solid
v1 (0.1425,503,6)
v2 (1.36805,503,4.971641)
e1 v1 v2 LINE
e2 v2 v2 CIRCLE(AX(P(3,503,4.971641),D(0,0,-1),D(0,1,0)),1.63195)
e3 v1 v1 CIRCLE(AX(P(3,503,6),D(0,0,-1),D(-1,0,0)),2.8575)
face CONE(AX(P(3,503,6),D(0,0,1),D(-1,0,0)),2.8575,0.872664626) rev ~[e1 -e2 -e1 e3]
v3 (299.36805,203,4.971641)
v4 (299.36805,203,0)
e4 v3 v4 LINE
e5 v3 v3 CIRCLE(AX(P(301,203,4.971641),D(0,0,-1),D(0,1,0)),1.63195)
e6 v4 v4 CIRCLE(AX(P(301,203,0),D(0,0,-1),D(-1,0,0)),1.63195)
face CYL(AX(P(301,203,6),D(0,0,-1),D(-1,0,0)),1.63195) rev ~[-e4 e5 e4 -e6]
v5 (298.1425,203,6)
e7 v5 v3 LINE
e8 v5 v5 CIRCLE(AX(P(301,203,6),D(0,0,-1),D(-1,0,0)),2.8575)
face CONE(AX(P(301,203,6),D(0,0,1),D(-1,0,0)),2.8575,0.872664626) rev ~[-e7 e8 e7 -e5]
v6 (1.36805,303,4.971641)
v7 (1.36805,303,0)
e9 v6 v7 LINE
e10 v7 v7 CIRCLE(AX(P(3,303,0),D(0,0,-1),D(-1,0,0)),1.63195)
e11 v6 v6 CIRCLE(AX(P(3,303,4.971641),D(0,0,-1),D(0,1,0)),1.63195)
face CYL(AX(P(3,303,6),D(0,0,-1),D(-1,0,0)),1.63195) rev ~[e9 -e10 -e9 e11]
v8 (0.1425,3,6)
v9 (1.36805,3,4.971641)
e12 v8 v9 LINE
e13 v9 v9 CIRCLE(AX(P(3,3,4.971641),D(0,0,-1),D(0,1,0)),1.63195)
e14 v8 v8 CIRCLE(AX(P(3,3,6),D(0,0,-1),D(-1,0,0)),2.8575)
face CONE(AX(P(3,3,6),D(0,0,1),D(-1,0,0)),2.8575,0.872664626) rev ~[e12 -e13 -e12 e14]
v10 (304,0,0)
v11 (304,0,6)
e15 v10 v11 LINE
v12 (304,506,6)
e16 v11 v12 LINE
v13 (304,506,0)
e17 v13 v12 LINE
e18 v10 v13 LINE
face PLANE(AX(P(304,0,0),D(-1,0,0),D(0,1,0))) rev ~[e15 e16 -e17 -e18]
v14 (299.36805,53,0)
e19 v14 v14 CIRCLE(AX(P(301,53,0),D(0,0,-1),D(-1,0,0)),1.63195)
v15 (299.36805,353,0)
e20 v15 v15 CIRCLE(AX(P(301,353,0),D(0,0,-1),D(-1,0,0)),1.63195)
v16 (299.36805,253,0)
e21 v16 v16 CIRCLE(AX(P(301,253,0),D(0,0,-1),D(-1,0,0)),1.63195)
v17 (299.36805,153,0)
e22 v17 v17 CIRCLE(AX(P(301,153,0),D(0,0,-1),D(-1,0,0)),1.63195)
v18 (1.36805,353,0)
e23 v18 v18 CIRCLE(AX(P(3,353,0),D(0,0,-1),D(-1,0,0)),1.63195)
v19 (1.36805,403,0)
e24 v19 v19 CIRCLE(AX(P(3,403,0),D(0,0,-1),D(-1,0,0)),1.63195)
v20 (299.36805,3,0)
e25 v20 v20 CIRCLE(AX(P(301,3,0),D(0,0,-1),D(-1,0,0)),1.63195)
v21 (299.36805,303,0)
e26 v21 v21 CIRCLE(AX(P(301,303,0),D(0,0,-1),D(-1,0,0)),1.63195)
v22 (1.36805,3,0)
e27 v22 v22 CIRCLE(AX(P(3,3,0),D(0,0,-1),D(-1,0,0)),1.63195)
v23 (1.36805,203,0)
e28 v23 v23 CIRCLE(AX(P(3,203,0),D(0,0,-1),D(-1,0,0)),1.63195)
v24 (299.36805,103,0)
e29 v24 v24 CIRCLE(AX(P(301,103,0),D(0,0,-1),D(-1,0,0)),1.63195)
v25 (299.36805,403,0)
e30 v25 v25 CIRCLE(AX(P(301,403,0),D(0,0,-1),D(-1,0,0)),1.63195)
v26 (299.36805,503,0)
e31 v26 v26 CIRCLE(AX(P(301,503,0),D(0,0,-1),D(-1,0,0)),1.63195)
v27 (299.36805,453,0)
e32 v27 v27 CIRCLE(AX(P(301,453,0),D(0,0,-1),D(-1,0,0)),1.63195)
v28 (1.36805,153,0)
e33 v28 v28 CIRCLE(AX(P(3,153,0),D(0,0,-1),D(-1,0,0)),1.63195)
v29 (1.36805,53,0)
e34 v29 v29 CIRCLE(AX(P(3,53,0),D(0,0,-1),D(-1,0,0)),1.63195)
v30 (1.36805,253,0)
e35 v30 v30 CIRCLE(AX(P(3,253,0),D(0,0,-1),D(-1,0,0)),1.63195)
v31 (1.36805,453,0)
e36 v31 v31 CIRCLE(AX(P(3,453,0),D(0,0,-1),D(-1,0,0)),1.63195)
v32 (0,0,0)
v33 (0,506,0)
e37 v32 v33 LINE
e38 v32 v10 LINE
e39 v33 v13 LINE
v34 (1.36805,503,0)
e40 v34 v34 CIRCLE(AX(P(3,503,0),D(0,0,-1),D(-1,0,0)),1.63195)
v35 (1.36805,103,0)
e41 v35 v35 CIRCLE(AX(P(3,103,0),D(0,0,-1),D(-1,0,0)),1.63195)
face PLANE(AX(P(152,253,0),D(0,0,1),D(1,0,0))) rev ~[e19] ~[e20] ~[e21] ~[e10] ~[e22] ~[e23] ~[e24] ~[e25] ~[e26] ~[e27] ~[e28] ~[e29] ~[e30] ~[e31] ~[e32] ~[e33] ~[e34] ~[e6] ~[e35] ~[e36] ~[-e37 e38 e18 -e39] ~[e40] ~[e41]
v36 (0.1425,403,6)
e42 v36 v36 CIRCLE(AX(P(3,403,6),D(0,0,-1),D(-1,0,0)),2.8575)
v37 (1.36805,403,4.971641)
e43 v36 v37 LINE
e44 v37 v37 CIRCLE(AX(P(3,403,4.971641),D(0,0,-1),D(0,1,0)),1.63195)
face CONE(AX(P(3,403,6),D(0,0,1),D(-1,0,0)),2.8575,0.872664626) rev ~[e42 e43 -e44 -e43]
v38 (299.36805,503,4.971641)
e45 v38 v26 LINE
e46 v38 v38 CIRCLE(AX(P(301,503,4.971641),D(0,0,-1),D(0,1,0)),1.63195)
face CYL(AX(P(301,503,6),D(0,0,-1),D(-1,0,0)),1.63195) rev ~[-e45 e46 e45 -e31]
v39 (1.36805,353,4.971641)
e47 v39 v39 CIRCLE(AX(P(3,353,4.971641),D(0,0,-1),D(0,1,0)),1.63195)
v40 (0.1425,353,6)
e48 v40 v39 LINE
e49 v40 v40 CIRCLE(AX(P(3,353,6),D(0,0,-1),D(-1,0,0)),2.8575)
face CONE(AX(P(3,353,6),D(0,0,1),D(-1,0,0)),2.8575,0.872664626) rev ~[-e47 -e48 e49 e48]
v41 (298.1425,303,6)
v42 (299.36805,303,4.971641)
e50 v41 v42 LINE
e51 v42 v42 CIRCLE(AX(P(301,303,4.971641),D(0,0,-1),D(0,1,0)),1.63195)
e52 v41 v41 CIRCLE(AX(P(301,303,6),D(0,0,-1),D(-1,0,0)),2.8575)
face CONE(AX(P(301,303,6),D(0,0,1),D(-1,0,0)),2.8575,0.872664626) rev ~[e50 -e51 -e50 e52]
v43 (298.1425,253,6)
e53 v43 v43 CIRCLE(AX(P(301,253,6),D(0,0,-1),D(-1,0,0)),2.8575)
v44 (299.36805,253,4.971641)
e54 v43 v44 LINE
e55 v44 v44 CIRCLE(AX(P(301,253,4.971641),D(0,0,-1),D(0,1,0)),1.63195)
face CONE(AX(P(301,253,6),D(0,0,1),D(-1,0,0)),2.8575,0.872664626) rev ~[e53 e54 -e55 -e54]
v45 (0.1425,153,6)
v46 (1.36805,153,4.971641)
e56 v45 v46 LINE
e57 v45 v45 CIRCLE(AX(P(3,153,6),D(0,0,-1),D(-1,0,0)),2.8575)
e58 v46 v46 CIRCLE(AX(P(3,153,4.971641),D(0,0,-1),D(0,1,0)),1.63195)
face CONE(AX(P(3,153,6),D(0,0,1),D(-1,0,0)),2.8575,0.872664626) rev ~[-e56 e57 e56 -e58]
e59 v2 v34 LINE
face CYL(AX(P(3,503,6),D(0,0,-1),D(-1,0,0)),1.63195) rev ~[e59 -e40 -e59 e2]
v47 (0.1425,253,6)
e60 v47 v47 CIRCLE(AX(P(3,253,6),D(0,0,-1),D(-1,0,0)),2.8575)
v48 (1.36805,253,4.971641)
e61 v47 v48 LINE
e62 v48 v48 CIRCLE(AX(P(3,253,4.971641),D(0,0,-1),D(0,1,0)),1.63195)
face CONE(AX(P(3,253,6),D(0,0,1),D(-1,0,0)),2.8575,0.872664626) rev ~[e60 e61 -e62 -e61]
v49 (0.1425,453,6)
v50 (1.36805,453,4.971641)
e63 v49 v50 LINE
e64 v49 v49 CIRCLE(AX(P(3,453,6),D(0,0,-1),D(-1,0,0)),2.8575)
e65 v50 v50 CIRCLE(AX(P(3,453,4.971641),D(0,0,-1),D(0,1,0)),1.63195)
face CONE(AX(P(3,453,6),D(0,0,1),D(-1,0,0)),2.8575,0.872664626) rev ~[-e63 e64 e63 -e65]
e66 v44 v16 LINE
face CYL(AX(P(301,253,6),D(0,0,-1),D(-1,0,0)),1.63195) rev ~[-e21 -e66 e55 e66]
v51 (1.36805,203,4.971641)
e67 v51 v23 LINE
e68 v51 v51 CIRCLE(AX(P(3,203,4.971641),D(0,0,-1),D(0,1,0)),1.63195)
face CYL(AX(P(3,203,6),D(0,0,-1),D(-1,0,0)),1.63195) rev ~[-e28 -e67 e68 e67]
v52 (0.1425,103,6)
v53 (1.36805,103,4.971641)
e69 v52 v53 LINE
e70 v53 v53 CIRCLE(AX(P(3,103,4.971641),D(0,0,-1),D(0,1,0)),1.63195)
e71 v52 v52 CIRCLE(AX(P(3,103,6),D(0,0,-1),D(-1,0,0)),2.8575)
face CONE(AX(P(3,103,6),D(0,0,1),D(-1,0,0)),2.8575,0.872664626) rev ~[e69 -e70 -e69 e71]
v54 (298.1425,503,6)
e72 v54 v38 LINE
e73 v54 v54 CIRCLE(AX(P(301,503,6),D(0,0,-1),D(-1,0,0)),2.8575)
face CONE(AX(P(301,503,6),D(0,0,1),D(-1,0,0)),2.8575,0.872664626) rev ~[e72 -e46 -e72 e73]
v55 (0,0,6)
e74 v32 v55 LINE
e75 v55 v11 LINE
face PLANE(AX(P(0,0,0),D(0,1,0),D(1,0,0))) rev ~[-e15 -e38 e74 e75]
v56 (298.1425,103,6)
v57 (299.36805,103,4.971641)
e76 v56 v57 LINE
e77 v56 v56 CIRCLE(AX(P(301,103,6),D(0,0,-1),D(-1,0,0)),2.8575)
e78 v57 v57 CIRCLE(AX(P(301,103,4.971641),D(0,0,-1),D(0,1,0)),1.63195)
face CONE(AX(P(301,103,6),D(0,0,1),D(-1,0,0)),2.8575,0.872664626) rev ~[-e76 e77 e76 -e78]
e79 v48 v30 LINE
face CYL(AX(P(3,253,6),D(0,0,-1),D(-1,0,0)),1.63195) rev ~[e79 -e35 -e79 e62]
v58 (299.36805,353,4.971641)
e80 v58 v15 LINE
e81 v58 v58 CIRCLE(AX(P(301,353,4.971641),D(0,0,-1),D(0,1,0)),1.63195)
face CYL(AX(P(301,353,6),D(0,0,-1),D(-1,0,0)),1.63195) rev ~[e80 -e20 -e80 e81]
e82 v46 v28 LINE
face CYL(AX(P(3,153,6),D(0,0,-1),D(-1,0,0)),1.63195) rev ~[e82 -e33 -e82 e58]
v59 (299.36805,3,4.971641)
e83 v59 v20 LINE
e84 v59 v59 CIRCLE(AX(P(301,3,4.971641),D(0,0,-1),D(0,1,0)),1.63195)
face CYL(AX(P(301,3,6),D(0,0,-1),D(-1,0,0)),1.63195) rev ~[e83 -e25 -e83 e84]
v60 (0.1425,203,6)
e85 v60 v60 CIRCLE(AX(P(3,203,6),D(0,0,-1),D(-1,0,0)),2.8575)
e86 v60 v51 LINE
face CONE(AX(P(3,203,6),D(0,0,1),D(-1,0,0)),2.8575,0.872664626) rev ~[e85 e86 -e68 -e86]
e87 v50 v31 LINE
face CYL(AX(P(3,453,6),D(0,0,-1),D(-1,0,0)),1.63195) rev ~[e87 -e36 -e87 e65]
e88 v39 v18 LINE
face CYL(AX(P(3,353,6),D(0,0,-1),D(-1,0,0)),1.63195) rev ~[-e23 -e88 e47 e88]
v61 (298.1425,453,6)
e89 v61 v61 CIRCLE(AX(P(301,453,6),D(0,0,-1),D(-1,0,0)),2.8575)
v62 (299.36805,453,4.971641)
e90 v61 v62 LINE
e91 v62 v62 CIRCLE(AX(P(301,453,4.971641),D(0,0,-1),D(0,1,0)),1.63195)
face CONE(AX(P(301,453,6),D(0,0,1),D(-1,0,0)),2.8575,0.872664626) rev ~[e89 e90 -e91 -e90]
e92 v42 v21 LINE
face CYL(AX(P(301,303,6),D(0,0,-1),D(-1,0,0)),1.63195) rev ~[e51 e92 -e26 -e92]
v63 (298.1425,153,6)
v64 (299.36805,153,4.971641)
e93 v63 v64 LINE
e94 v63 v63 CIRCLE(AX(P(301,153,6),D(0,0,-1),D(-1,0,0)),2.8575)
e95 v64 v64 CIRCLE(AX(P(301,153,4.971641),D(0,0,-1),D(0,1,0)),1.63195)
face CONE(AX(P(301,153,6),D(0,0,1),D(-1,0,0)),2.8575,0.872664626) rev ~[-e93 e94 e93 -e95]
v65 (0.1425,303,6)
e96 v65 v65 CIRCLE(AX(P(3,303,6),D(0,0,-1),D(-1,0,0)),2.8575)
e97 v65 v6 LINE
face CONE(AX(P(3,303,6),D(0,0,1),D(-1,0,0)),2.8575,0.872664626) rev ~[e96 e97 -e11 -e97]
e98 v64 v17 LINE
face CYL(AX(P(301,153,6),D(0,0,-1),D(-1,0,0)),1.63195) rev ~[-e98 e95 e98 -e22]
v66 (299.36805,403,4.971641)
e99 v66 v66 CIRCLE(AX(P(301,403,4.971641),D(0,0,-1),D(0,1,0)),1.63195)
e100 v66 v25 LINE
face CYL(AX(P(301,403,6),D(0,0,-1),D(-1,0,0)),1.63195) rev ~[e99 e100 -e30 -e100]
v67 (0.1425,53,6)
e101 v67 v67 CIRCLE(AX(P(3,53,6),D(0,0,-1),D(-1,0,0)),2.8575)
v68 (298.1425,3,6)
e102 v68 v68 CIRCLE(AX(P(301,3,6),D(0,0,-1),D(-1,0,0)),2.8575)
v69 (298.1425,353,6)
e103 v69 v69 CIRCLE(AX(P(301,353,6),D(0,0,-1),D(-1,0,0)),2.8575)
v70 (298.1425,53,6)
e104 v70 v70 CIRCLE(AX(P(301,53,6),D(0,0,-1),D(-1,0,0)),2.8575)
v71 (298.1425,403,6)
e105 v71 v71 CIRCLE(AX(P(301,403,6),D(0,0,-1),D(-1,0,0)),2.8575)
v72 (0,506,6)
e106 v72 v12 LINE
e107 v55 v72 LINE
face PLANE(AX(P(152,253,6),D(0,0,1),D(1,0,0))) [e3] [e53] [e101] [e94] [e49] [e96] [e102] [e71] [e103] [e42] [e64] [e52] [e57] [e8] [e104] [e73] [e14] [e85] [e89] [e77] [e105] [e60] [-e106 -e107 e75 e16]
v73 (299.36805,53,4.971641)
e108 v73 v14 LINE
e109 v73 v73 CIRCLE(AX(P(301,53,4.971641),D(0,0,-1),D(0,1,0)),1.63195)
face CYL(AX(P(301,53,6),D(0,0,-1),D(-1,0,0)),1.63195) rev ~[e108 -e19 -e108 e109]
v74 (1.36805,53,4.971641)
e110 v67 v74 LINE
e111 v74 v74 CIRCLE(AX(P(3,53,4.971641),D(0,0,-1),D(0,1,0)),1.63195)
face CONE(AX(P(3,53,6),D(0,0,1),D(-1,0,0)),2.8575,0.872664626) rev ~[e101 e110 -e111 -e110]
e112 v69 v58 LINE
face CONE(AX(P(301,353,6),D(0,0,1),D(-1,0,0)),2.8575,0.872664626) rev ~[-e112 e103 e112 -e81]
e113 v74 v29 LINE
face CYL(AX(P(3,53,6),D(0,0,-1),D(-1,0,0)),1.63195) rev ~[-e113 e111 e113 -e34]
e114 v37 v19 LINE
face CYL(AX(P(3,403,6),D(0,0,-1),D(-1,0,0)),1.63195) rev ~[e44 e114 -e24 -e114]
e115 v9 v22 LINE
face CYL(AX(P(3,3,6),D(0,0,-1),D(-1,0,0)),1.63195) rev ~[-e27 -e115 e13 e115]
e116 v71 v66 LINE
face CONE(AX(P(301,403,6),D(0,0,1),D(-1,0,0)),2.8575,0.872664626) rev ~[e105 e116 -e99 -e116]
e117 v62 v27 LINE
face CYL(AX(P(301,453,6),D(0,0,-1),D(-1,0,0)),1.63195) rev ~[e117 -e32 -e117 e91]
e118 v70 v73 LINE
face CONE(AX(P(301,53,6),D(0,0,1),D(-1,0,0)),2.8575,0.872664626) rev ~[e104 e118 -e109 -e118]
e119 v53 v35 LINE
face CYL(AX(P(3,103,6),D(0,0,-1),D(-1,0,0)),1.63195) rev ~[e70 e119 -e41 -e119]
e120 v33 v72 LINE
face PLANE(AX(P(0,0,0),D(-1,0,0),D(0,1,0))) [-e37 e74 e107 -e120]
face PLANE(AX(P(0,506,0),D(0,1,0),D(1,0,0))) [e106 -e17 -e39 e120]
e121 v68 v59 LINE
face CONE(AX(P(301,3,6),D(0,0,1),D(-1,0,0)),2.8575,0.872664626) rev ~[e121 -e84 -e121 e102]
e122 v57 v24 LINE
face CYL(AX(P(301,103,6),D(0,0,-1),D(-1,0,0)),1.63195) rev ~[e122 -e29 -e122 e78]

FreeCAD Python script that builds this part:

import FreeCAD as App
import Part
import Sketcher
from FreeCAD import Vector

doc = App.newDocument("Part")
body = doc.addObject("PartDesign::Body", "Body")

sketch1 = body.newObject("Sketcher::SketchObject", "Sketch")
sketch1.AttachmentSupport = (doc.getObject("XY_Plane"), [""])
sketch1.MapMode = "FlatFace"
sketch1.addGeometry(Part.LineSegment(Vector(0, 506, 0), Vector(0, 0, 0)), False)
sketch1.addGeometry(Part.LineSegment(Vector(0, 0, 0), Vector(304, 0, 0)), False)
sketch1.addGeometry(Part.LineSegment(Vector(304, 0, 0), Vector(304, 506, 0)), False)
sketch1.addGeometry(Part.LineSegment(Vector(304, 506, 0), Vector(0, 506, 0)), False)
sketch1.addConstraint(Sketcher.Constraint("Coincident", 0, 2, 1, 1))
sketch1.addConstraint(Sketcher.Constraint("Coincident", 1, 2, 2, 1))
sketch1.addConstraint(Sketcher.Constraint("Coincident", 2, 2, 3, 1))
sketch1.addConstraint(Sketcher.Constraint("Coincident", 3, 2, 0, 1))
sketch1.addConstraint(Sketcher.Constraint("Vertical", 0))
sketch1.addConstraint(Sketcher.Constraint("Horizontal", 1))
sketch1.addConstraint(Sketcher.Constraint("Vertical", 2))
sketch1.addConstraint(Sketcher.Constraint("Horizontal", 3))
sketch1.addConstraint(Sketcher.Constraint("Coincident", 0, 2, -1, 1))
sketch1.addConstraint(Sketcher.Constraint("DistanceX", 1, 1, 1, 2, 304.0))
sketch1.addConstraint(Sketcher.Constraint("DistanceY", 0, 2, 0, 1, 506.0))
pad1 = body.newObject("PartDesign::Pad", "Pad")
pad1.Profile = sketch1
pad1.Length = 6

sketch2 = body.newObject("Sketcher::SketchObject", "Sketch001")
sketch2.AttachmentSupport = (doc.getObject("XY_Plane"), [""])
sketch2.MapMode = "FlatFace"
sketch2.AttachmentOffset = App.Placement(Vector(0, 0, 6), App.Rotation())
sketch2.addGeometry(Part.Circle(Vector(3, 503, 0), Vector(0, 0, 1), 1.6), False)
sketch2.addGeometry(Part.Circle(Vector(3, 3, 0), Vector(0, 0, 1), 1.6), False)
sketch2.addGeometry(Part.Circle(Vector(3, 253, 0), Vector(0, 0, 1), 1.6), False)
sketch2.addGeometry(Part.Circle(Vector(3, 303, 0), Vector(0, 0, 1), 1.6), False)
sketch2.addGeometry(Part.Circle(Vector(3, 353, 0), Vector(0, 0, 1), 1.6), False)
sketch2.addGeometry(Part.Circle(Vector(3, 403, 0), Vector(0, 0, 1), 1.6), False)
sketch2.addGeometry(Part.Circle(Vector(3, 453, 0), Vector(0, 0, 1), 1.6), False)
sketch2.addGeometry(Part.Circle(Vector(3, 203, 0), Vector(0, 0, 1), 1.6), False)
sketch2.addGeometry(Part.Circle(Vector(3, 153, 0), Vector(0, 0, 1), 1.6), False)
sketch2.addGeometry(Part.Circle(Vector(3, 103, 0), Vector(0, 0, 1), 1.6), False)
sketch2.addGeometry(Part.Circle(Vector(3, 53, 0), Vector(0, 0, 1), 1.6), False)
sketch2.addGeometry(Part.Circle(Vector(301, 503, 0), Vector(0, 0, 1), 1.6), False)
sketch2.addGeometry(Part.Circle(Vector(301, 453, 0), Vector(0, 0, 1), 1.6), False)
sketch2.addGeometry(Part.Circle(Vector(301, 403, 0), Vector(0, 0, 1), 1.6), False)
sketch2.addGeometry(Part.Circle(Vector(301, 353, 0), Vector(0, 0, 1), 1.6), False)
sketch2.addGeometry(Part.Circle(Vector(301, 303, 0), Vector(0, 0, 1), 1.6), False)
sketch2.addGeometry(Part.Circle(Vector(301, 253, 0), Vector(0, 0, 1), 1.6), False)
sketch2.addGeometry(Part.Circle(Vector(301, 203, 0), Vector(0, 0, 1), 1.6), False)
sketch2.addGeometry(Part.Circle(Vector(301, 153, 0), Vector(0, 0, 1), 1.6), False)
sketch2.addGeometry(Part.Circle(Vector(301, 103, 0), Vector(0, 0, 1), 1.6), False)
sketch2.addGeometry(Part.Circle(Vector(301, 53, 0), Vector(0, 0, 1), 1.6), False)
sketch2.addGeometry(Part.Circle(Vector(301, 3, 0), Vector(0, 0, 1), 1.6), False)
sketch2.addConstraint(Sketcher.Constraint("Equal", 0, 1))
sketch2.addConstraint(Sketcher.Constraint("Equal", 1, 2))
sketch2.addConstraint(Sketcher.Constraint("Equal", 2, 3))
sketch2.addConstraint(Sketcher.Constraint("Equal", 3, 4))
sketch2.addConstraint(Sketcher.Constraint("Equal", 4, 5))
sketch2.addConstraint(Sketcher.Constraint("Equal", 5, 6))
sketch2.addConstraint(Sketcher.Constraint("Equal", 6, 7))
sketch2.addConstraint(Sketcher.Constraint("Equal", 7, 8))
sketch2.addConstraint(Sketcher.Constraint("Equal", 8, 9))
sketch2.addConstraint(Sketcher.Constraint("Equal", 9, 10))
sketch2.addConstraint(Sketcher.Constraint("Equal", 10, 11))
sketch2.addConstraint(Sketcher.Constraint("Equal", 11, 12))
sketch2.addConstraint(Sketcher.Constraint("Equal", 12, 13))
sketch2.addConstraint(Sketcher.Constraint("Equal", 13, 14))
sketch2.addConstraint(Sketcher.Constraint("Equal", 14, 15))
sketch2.addConstraint(Sketcher.Constraint("Equal", 15, 16))
sketch2.addConstraint(Sketcher.Constraint("Equal", 16, 17))
sketch2.addConstraint(Sketcher.Constraint("Equal", 17, 18))
sketch2.addConstraint(Sketcher.Constraint("Equal", 18, 19))
sketch2.addConstraint(Sketcher.Constraint("Equal", 19, 20))
sketch2.addConstraint(Sketcher.Constraint("Equal", 20, 21))
sketch2.addConstraint(Sketcher.Constraint("Horizontal", 0, 3, 11, 3))
sketch2.addConstraint(Sketcher.Constraint("Horizontal", 6, 3, 12, 3))
sketch2.addConstraint(Sketcher.Constraint("Horizontal", 5, 3, 13, 3))
sketch2.addConstraint(Sketcher.Constraint("Horizontal", 4, 3, 14, 3))
sketch2.addConstraint(Sketcher.Constraint("Horizontal", 3, 3, 15, 3))
sketch2.addConstraint(Sketcher.Constraint("Horizontal", 2, 3, 16, 3))
sketch2.addConstraint(Sketcher.Constraint("Horizontal", 7, 3, 17, 3))
sketch2.addConstraint(Sketcher.Constraint("Horizontal", 8, 3, 18, 3))
sketch2.addConstraint(Sketcher.Constraint("Horizontal", 9, 3, 19, 3))
sketch2.addConstraint(Sketcher.Constraint("Horizontal", 10, 3, 20, 3))
sketch2.addConstraint(Sketcher.Constraint("Horizontal", 1, 3, 21, 3))
sketch2.addConstraint(Sketcher.Constraint("Vertical", 0, 3, 1, 3))
sketch2.addConstraint(Sketcher.Constraint("Vertical", 1, 3, 2, 3))
sketch2.addConstraint(Sketcher.Constraint("Vertical", 2, 3, 3, 3))
sketch2.addConstraint(Sketcher.Constraint("Vertical", 3, 3, 4, 3))
sketch2.addConstraint(Sketcher.Constraint("Vertical", 4, 3, 5, 3))
sketch2.addConstraint(Sketcher.Constraint("Vertical", 5, 3, 6, 3))
sketch2.addConstraint(Sketcher.Constraint("Vertical", 6, 3, 7, 3))
sketch2.addConstraint(Sketcher.Constraint("Vertical", 7, 3, 8, 3))
sketch2.addConstraint(Sketcher.Constraint("Vertical", 8, 3, 9, 3))
sketch2.addConstraint(Sketcher.Constraint("Vertical", 9, 3, 10, 3))
sketch2.addConstraint(Sketcher.Constraint("Vertical", 11, 3, 12, 3))
sketch2.addConstraint(Sketcher.Constraint("Vertical", 12, 3, 13, 3))
sketch2.addConstraint(Sketcher.Constraint("Vertical", 13, 3, 14, 3))
sketch2.addConstraint(Sketcher.Constraint("Vertical", 14, 3, 15, 3))
sketch2.addConstraint(Sketcher.Constraint("Vertical", 15, 3, 16, 3))
sketch2.addConstraint(Sketcher.Constraint("Vertical", 16, 3, 17, 3))
sketch2.addConstraint(Sketcher.Constraint("Vertical", 17, 3, 18, 3))
sketch2.addConstraint(Sketcher.Constraint("Vertical", 18, 3, 19, 3))
sketch2.addConstraint(Sketcher.Constraint("Vertical", 19, 3, 20, 3))
sketch2.addConstraint(Sketcher.Constraint("Vertical", 20, 3, 21, 3))
sketch2.addConstraint(Sketcher.Constraint("DistanceX", -1, 1, 0, 3, 3.0))
sketch2.addConstraint(Sketcher.Constraint("DistanceY", -1, 1, 0, 3, 503.0))
sketch2.addConstraint(Sketcher.Constraint("DistanceY", -1, 1, 1, 3, 3.0))
sketch2.addConstraint(Sketcher.Constraint("DistanceY", -1, 1, 2, 3, 253.0))
sketch2.addConstraint(Sketcher.Constraint("DistanceY", -1, 1, 3, 3, 303.0))
sketch2.addConstraint(Sketcher.Constraint("DistanceY", -1, 1, 4, 3, 353.0))
sketch2.addConstraint(Sketcher.Constraint("DistanceY", -1, 1, 5, 3, 403.0))
sketch2.addConstraint(Sketcher.Constraint("DistanceY", -1, 1, 6, 3, 453.0))
sketch2.addConstraint(Sketcher.Constraint("DistanceY", -1, 1, 7, 3, 203.0))
sketch2.addConstraint(Sketcher.Constraint("DistanceY", -1, 1, 8, 3, 153.0))
sketch2.addConstraint(Sketcher.Constraint("DistanceY", -1, 1, 9, 3, 103.0))
sketch2.addConstraint(Sketcher.Constraint("DistanceY", -1, 1, 10, 3, 53.0))
sketch2.addConstraint(Sketcher.Constraint("DistanceX", -1, 1, 11, 3, 301.0))
sketch2.addConstraint(Sketcher.Constraint("Diameter", 0, 3.2639))
doc.recompute()
hole = body.newObject("PartDesign::Hole", "Hole")
hole.Profile = sketch2
hole.ThreadType = "None"
hole.Diameter = 3.2639
hole.DepthType = "ThroughAll"
hole.HoleCutType = "Countersink"
hole.HoleCutDiameter = 5.715
hole.HoleCutCountersinkAngle = 100

doc.recompute()
